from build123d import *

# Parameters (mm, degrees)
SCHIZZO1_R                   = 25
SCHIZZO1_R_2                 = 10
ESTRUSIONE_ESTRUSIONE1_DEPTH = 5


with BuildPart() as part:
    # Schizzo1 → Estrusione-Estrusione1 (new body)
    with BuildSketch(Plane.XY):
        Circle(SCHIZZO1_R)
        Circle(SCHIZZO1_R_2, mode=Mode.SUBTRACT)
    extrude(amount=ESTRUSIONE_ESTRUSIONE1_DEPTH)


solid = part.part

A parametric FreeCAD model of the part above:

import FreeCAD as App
import Part
import Sketcher
from FreeCAD import Vector

doc = App.newDocument("Part")
body = doc.addObject("PartDesign::Body", "Body")

# Sketch on XY plane
sketch1 = doc.addObject("Sketcher::SketchObject", "Sketch")
body.addObject(sketch1)
sketch1.AttachmentSupport = (doc.XY_Plane, [""])
sketch1.MapMode = "FlatFace"
sketch1.addGeometry([
    Part.Circle(Vector(0, 0, 0), Vector(0, 0, 1), 25),
    Part.Circle(Vector(0, 0, 0), Vector(0, 0, 1), 10),
], False)
sketch1.addConstraint([
    Sketcher.Constraint("Coincident", 0, 3, -1, 1),
    Sketcher.Constraint("Coincident", 1, 3, -1, 1),
    Sketcher.Constraint("Diameter", 0, 50.0),
    Sketcher.Constraint("Diameter", 1, 20.0),
])
pad1 = doc.addObject("PartDesign::Pad", "Pad")
body.addObject(pad1)
pad1.Profile = sketch1
pad1.Length = 5

doc.recompute()
